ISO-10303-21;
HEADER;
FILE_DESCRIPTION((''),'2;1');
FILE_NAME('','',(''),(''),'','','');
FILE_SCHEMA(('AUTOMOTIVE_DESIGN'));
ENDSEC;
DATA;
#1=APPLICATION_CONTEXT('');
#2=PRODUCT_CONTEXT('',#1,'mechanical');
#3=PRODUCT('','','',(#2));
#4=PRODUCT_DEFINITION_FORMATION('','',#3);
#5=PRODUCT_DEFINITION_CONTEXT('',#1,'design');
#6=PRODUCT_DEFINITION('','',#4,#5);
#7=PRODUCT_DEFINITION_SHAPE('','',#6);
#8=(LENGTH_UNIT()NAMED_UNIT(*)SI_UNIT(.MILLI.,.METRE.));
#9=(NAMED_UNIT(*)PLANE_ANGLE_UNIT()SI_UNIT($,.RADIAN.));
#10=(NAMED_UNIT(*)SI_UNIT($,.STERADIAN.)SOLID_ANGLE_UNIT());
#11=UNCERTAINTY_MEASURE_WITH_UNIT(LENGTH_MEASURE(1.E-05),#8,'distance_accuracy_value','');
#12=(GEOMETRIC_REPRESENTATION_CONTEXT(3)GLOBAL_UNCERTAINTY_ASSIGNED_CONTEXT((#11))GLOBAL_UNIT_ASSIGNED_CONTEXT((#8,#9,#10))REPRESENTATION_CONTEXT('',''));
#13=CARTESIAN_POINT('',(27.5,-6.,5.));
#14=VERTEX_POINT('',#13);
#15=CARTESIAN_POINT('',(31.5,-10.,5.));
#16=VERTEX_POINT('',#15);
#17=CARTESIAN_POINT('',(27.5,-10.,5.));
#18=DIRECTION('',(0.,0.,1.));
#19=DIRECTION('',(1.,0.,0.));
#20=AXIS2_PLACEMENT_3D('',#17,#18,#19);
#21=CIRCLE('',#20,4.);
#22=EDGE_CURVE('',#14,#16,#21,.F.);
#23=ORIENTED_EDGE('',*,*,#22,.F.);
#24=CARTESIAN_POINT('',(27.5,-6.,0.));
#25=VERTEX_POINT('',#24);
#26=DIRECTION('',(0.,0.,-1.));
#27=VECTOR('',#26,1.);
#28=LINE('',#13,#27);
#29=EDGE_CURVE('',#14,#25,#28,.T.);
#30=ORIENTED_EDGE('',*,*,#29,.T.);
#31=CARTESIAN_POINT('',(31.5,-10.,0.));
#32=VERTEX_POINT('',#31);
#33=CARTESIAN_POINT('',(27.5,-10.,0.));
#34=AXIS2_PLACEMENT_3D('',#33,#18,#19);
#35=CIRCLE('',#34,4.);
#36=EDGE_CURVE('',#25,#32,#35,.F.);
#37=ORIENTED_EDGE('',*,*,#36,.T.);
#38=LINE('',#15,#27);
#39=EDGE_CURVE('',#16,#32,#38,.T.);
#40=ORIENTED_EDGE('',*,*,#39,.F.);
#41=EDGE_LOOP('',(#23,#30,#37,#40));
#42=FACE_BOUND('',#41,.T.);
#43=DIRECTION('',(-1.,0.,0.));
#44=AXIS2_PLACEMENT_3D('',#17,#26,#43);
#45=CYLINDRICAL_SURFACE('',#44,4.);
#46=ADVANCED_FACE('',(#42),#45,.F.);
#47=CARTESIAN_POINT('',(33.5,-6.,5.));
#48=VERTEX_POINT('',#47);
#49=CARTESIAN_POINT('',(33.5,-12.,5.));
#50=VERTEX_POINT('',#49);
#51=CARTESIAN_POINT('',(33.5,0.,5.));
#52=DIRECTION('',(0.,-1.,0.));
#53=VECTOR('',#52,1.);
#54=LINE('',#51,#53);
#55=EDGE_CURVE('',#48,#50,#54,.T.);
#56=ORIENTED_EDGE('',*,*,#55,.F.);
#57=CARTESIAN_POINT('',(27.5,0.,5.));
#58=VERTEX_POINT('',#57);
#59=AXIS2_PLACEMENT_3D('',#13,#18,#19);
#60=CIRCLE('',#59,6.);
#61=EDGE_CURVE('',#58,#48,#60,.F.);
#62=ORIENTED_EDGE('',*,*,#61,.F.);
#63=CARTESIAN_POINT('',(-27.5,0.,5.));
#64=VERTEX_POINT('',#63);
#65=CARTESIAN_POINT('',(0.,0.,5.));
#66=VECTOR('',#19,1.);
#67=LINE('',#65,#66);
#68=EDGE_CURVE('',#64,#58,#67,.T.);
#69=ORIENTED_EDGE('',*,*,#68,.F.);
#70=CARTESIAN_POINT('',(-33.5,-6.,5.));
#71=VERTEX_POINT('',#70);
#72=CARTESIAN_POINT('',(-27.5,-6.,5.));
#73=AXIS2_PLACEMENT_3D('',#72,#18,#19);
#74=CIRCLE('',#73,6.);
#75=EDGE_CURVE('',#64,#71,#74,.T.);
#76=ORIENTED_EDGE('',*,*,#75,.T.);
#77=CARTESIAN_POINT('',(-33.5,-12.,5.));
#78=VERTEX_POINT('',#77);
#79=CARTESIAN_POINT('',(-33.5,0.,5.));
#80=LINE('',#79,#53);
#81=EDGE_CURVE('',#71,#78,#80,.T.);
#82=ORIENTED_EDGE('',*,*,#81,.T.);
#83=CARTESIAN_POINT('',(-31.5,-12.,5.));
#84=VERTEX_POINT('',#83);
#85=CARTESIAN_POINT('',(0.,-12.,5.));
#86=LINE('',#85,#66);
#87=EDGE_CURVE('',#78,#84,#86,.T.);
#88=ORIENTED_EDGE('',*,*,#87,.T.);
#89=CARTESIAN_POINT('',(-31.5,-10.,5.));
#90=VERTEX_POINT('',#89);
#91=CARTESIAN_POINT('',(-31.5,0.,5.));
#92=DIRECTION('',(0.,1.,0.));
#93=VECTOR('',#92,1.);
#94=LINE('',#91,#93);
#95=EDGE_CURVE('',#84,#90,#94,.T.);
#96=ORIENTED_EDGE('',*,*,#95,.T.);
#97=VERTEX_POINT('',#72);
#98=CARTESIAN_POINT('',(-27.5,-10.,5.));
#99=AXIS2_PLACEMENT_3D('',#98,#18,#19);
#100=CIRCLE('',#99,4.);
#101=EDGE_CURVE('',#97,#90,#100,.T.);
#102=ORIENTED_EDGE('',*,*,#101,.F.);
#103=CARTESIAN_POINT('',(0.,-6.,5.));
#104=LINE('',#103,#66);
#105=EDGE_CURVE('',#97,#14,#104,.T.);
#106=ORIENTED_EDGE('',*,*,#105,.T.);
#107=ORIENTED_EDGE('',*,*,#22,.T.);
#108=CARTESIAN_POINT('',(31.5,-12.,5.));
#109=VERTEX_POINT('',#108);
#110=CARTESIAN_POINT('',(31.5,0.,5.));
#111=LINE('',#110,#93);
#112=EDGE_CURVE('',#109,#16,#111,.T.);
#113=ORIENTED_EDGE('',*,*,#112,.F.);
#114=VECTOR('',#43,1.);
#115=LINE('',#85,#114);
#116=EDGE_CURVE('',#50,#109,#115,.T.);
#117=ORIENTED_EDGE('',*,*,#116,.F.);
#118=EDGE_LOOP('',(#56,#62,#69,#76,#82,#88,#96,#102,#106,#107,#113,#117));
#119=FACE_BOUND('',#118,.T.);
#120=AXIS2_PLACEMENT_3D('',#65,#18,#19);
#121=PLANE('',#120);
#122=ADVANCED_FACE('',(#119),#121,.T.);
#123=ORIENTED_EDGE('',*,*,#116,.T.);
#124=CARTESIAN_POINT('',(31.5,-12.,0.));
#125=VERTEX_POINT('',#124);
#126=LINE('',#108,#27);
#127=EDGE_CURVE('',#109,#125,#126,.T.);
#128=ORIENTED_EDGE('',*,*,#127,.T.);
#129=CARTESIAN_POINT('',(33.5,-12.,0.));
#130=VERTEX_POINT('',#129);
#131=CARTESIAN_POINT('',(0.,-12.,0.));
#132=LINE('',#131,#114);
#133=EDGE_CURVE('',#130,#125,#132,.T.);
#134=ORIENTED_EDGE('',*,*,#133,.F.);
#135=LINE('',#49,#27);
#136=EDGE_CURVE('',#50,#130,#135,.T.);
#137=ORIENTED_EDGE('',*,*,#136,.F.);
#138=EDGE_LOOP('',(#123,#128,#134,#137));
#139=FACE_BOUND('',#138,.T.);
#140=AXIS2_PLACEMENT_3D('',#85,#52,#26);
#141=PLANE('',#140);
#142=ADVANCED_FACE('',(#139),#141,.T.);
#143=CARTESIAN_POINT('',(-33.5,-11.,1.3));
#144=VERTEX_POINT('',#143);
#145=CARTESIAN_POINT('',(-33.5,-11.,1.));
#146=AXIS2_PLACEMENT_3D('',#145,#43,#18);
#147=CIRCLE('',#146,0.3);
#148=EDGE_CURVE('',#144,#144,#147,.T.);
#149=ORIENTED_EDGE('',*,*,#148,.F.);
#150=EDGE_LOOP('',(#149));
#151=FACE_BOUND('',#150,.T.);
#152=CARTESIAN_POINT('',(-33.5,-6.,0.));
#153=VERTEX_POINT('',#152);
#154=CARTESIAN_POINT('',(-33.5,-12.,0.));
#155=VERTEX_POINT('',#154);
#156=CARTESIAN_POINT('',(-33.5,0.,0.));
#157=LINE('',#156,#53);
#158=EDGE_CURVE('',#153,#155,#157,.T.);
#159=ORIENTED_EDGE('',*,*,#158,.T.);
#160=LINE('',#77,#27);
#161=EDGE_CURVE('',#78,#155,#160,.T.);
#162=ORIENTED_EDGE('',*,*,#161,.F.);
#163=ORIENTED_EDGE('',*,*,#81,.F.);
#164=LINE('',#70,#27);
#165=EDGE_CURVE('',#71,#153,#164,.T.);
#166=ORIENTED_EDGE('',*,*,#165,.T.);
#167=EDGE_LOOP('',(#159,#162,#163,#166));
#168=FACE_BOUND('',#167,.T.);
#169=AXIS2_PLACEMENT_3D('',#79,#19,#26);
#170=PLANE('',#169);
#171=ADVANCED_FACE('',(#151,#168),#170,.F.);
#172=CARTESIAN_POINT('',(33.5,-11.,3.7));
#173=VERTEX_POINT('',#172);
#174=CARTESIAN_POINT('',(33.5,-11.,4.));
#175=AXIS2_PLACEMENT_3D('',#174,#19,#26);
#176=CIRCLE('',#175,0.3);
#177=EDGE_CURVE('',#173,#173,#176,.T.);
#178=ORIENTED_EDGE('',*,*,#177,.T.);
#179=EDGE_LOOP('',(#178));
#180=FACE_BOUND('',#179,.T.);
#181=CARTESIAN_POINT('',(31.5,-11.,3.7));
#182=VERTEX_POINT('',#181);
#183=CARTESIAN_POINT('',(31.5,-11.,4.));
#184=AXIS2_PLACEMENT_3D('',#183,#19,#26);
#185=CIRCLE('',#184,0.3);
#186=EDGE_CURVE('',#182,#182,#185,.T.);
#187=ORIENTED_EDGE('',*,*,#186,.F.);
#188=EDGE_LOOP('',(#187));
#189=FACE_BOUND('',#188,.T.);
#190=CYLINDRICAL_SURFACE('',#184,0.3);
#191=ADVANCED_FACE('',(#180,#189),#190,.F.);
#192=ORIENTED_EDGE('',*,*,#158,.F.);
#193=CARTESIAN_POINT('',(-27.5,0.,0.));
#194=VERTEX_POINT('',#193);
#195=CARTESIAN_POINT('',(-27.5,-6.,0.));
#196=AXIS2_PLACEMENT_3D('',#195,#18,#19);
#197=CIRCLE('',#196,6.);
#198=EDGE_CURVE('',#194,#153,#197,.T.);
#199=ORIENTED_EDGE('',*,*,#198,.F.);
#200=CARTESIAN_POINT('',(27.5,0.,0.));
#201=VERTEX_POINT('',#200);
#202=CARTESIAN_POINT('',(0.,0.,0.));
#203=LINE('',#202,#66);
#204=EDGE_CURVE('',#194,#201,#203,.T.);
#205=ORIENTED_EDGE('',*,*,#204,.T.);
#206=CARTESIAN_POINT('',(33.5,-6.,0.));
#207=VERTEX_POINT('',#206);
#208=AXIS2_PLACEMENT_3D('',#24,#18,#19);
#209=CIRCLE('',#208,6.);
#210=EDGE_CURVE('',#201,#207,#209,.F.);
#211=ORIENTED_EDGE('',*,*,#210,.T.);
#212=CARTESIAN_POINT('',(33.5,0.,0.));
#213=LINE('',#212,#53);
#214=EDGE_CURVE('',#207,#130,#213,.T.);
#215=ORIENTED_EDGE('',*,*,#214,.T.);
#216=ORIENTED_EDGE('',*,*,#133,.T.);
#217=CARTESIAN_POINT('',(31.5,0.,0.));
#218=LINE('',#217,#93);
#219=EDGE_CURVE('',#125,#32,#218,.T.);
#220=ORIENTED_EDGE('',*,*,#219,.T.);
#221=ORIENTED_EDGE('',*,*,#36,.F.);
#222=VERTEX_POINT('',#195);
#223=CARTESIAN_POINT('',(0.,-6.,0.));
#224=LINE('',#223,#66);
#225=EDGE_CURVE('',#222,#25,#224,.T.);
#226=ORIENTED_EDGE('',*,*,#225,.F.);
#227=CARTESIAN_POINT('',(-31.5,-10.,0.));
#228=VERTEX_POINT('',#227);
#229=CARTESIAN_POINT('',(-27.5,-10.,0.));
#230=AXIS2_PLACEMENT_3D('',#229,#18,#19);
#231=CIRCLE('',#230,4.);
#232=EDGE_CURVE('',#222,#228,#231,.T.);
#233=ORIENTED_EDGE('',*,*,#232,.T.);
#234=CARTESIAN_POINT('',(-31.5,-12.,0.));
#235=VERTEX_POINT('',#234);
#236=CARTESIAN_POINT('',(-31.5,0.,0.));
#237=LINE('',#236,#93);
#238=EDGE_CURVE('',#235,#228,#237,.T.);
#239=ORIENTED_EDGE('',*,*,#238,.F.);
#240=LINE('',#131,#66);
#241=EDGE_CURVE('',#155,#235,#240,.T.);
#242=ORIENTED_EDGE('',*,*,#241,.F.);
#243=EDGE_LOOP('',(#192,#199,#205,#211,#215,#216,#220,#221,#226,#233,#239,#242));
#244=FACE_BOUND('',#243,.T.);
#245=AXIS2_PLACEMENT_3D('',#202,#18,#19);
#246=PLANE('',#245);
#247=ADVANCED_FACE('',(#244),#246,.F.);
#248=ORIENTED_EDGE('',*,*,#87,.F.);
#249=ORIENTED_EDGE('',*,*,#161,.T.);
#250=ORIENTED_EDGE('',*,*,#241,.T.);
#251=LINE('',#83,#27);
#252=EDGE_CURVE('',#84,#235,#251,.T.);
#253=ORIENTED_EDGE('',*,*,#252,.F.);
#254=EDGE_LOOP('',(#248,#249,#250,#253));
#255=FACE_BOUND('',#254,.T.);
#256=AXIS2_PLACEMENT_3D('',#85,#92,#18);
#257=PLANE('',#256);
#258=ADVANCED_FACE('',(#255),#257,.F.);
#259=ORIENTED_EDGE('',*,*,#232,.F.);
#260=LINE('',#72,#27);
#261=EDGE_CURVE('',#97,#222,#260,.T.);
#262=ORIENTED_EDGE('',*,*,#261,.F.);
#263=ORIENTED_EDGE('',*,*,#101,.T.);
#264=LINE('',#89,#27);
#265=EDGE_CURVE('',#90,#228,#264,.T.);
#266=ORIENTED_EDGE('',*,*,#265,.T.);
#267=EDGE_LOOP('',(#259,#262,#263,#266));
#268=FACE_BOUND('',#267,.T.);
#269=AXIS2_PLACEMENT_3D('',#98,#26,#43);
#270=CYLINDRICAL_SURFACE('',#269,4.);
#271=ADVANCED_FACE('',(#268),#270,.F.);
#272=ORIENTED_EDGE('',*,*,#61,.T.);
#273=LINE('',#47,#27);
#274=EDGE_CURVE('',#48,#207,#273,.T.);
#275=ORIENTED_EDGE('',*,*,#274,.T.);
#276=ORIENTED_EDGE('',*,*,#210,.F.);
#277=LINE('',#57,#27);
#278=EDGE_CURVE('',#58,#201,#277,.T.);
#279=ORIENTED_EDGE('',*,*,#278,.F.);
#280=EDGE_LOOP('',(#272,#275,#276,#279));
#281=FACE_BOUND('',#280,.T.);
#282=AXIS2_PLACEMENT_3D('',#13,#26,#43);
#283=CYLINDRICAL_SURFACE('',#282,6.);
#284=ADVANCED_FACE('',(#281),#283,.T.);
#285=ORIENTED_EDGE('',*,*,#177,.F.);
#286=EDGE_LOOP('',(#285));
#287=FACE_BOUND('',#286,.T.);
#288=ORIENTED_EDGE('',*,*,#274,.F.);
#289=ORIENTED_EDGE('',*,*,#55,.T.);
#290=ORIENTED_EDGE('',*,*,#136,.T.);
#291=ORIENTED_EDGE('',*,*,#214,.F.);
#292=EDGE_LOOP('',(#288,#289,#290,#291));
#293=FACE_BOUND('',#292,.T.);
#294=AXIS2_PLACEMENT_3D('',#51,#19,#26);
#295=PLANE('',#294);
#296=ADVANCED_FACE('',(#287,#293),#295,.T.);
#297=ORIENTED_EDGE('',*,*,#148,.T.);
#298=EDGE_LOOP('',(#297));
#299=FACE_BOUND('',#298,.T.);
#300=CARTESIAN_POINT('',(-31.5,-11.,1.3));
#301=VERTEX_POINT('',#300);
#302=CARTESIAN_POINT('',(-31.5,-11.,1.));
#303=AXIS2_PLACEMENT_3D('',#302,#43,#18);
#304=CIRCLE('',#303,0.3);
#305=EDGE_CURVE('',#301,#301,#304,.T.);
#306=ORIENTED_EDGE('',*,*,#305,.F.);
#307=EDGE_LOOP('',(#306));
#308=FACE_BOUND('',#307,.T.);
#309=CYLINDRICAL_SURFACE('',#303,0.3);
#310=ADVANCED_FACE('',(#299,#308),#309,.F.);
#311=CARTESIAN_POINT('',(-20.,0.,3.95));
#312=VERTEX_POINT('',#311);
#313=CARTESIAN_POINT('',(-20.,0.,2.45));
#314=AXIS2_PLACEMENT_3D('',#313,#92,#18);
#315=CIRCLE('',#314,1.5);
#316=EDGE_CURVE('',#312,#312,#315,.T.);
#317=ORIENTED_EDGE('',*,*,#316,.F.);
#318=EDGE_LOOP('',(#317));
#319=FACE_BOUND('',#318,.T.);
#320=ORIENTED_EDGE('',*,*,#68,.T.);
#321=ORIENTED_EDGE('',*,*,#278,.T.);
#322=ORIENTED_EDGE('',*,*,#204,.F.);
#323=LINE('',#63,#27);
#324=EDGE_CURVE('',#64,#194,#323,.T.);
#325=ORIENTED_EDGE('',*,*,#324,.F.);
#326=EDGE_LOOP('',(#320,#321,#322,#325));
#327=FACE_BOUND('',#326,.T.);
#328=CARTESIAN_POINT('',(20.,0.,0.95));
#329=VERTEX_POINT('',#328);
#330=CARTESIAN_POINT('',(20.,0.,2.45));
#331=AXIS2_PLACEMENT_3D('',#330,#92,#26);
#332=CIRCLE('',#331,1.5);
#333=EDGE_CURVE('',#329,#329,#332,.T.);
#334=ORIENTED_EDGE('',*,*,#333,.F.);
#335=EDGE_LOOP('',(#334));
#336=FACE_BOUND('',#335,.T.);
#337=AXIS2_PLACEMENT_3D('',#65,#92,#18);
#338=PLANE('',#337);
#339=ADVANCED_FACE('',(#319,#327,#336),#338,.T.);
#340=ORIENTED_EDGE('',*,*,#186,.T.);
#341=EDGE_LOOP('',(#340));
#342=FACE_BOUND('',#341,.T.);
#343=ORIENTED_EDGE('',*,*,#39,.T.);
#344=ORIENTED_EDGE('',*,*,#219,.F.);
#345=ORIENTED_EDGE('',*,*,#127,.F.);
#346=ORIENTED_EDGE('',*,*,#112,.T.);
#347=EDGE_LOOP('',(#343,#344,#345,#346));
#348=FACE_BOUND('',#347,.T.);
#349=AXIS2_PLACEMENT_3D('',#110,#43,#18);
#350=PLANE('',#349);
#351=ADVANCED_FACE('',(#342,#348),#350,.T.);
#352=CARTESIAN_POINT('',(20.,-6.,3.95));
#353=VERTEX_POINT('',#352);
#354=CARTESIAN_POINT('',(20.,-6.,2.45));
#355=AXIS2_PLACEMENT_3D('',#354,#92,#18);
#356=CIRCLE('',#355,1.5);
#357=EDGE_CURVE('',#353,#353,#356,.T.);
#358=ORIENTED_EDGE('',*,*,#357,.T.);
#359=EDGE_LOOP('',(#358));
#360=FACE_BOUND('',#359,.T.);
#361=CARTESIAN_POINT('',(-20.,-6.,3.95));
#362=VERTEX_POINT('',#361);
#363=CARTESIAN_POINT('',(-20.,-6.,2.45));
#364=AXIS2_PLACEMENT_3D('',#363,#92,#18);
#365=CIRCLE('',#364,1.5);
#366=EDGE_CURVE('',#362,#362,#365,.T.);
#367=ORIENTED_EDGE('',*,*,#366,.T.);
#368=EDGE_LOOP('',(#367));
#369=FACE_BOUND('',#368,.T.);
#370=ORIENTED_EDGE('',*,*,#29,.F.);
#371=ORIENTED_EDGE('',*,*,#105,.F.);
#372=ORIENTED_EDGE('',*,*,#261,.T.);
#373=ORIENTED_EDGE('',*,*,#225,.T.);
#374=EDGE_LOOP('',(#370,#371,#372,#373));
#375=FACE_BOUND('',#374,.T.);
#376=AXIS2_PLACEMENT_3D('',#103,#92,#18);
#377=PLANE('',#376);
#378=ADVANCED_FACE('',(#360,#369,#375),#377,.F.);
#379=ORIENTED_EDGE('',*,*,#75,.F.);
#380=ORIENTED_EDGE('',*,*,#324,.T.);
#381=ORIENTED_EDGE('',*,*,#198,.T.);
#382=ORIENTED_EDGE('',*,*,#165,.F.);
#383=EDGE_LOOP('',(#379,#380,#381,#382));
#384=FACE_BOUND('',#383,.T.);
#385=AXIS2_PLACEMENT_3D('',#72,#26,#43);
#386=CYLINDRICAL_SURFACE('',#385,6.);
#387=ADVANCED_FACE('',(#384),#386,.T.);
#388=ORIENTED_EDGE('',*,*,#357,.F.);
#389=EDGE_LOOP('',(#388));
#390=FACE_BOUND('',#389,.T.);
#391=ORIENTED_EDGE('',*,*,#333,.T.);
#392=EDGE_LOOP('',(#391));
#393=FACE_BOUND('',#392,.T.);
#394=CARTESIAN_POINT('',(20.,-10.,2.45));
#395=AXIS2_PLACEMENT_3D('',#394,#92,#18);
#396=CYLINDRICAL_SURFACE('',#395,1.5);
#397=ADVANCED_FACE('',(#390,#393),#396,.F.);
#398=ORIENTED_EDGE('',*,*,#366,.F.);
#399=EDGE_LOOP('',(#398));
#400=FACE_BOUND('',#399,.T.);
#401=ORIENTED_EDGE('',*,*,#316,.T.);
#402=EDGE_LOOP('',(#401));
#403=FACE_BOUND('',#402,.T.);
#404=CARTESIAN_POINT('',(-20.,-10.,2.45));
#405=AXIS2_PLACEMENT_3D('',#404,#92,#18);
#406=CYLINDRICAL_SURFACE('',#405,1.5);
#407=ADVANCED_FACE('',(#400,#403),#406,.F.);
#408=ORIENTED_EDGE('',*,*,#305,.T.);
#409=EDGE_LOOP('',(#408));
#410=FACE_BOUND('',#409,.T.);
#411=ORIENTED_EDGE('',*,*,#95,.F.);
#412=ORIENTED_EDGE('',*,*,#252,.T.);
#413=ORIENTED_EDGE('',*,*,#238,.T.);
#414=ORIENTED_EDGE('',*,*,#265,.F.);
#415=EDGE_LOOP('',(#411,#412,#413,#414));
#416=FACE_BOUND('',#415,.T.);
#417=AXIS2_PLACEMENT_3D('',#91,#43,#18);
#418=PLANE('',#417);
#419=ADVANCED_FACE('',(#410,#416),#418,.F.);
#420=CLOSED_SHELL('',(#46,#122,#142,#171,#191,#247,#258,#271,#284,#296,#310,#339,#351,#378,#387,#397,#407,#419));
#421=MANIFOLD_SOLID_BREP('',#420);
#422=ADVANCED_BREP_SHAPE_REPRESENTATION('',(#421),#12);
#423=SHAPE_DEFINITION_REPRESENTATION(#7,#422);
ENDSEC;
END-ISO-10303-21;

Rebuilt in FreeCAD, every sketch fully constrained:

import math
import FreeCAD as App
import Part
import Sketcher
from FreeCAD import Vector

doc = App.newDocument("Part")
body = doc.addObject("PartDesign::Body", "Body")

# Sketch on XY plane
sketch1 = doc.addObject("Sketcher::SketchObject", "Sketch")
body.addObject(sketch1)
sketch1.AttachmentSupport = (doc.XY_Plane, [""])
sketch1.MapMode = "FlatFace"
sketch1.addGeometry(Part.LineSegment(Vector(-27.5, -6, 0), Vector(27.5, -6, 0)), False)
sketch1.addGeometry(Part.ArcOfCircle(Part.Circle(Vector(27.5, -10, 0), Vector(0, 0, 1), 4), math.radians(0), math.radians(90)), False)
sketch1.addGeometry(Part.LineSegment(Vector(31.5, -10, 0), Vector(31.5, -12, 0)), False)
sketch1.addGeometry(Part.LineSegment(Vector(31.5, -12, 0), Vector(33.5, -12, 0)), False)
sketch1.addGeometry(Part.LineSegment(Vector(33.5, -12, 0), Vector(33.5, -6, 0)), False)
sketch1.addGeometry(Part.ArcOfCircle(Part.Circle(Vector(27.5, -6, 0), Vector(0, 0, 1), 6), math.radians(0), math.radians(90)), False)
sketch1.addGeometry(Part.LineSegment(Vector(27.5, 0, 0), Vector(-27.5, 0, 0)), False)
sketch1.addGeometry(Part.ArcOfCircle(Part.Circle(Vector(-27.5, -6, 0), Vector(0, 0, 1), 6), math.radians(90), math.radians(180)), False)
sketch1.addGeometry(Part.LineSegment(Vector(-33.5, -6, 0), Vector(-33.5, -12, 0)), False)
sketch1.addGeometry(Part.LineSegment(Vector(-33.5, -12, 0), Vector(-31.5, -12, 0)), False)
sketch1.addGeometry(Part.LineSegment(Vector(-31.5, -12, 0), Vector(-31.5, -10, 0)), False)
sketch1.addGeometry(Part.ArcOfCircle(Part.Circle(Vector(-27.5, -10, 0), Vector(0, 0, 1), 4), math.radians(90), math.radians(180)), False)
sketch1.addConstraint(Sketcher.Constraint("Tangent", 0, 2, 1, 2))
sketch1.addConstraint(Sketcher.Constraint("Tangent", 1, 1, 2, 1))
sketch1.addConstraint(Sketcher.Constraint("Coincident", 2, 2, 3, 1))
sketch1.addConstraint(Sketcher.Constraint("Coincident", 3, 2, 4, 1))
sketch1.addConstraint(Sketcher.Constraint("Tangent", 4, 2, 5, 1))
sketch1.addConstraint(Sketcher.Constraint("Tangent", 5, 2, 6, 1))
sketch1.addConstraint(Sketcher.Constraint("Tangent", 6, 2, 7, 1))
sketch1.addConstraint(Sketcher.Constraint("Tangent", 7, 2, 8, 1))
sketch1.addConstraint(Sketcher.Constraint("Coincident", 8, 2, 9, 1))
sketch1.addConstraint(Sketcher.Constraint("Coincident", 9, 2, 10, 1))
sketch1.addConstraint(Sketcher.Constraint("Tangent", 10, 2, 11, 2))
sketch1.addConstraint(Sketcher.Constraint("Tangent", 11, 1, 0, 1))
sketch1.addConstraint(Sketcher.Constraint("Horizontal", 0))
sketch1.addConstraint(Sketcher.Constraint("Vertical", 2))
sketch1.addConstraint(Sketcher.Constraint("Horizontal", 3))
sketch1.addConstraint(Sketcher.Constraint("Vertical", 4))
sketch1.addConstraint(Sketcher.Constraint("Horizontal", 6))
sketch1.addConstraint(Sketcher.Constraint("Vertical", 8))
sketch1.addConstraint(Sketcher.Constraint("Horizontal", 9))
sketch1.addConstraint(Sketcher.Constraint("Vertical", 10))
sketch1.addConstraint(Sketcher.Constraint("Coincident", 0, 2, 5, 3))
sketch1.addConstraint(Sketcher.Constraint("Coincident", 11, 1, 7, 3))
sketch1.addConstraint(Sketcher.Constraint("Equal", 1, 11))
sketch1.addConstraint(Sketcher.Constraint("Symmetric", 5, 2, 6, 2, -1, 1))
sketch1.addConstraint(Sketcher.Constraint("Horizontal", 3, 2, 8, 2))
sketch1.addConstraint(Sketcher.Constraint("Equal", 9, 2))
sketch1.addConstraint(Sketcher.Constraint("Radius", 1, 4.0))
sketch1.addConstraint(Sketcher.Constraint("Radius", 5, 6.0))
sketch1.addConstraint(Sketcher.Constraint("DistanceX", 0, 1, 0, 2, 55.0))
pad1 = doc.addObject("PartDesign::Pad", "Pad")
body.addObject(pad1)
pad1.Profile = sketch1
pad1.Length = 5

# Sketch on YZ plane
sketch2 = doc.addObject("Sketcher::SketchObject", "Sketch001")
body.addObject(sketch2)
sketch2.AttachmentSupport = (doc.YZ_Plane, [""])
sketch2.MapMode = "FlatFace"
sketch2.AttachmentOffset = App.Placement(Vector(0, 0, 33.5), App.Rotation())
sketch2.addGeometry(Part.Circle(Vector(-11, 4, 0), Vector(0, 0, 1), 0.3), False)
sketch2.addConstraint(Sketcher.Constraint("Diameter", 0, 0.6))
sketch2.addConstraint(Sketcher.Constraint("DistanceX", 0, 3, -1, 1, 11.0))
sketch2.addConstraint(Sketcher.Constraint("DistanceY", -1, 1, 0, 3, 4.0))
pocket1 = doc.addObject("PartDesign::Pocket", "Pocket")
body.addObject(pocket1)
pocket1.Profile = sketch2
pocket1.Length = 2

# Sketch on YZ plane
sketch3 = doc.addObject("Sketcher::SketchObject", "Sketch002")
body.addObject(sketch3)
sketch3.AttachmentSupport = (doc.YZ_Plane, [""])
sketch3.MapMode = "FlatFace"
sketch3.AttachmentOffset = App.Placement(Vector(0, 0, -33.5), App.Rotation())
sketch3.addGeometry(Part.Circle(Vector(-11, 1, 0), Vector(0, 0, 1), 0.3), False)
sketch3.addConstraint(Sketcher.Constraint("Diameter", 0, 0.6))
sketch3.addConstraint(Sketcher.Constraint("DistanceX", 0, 3, -1, 1, 11.0))
sketch3.addConstraint(Sketcher.Constraint("DistanceY", -1, 1, 0, 3, 1.0))
pocket2 = doc.addObject("PartDesign::Pocket", "Pocket001")
body.addObject(pocket2)
pocket2.Profile = sketch3
pocket2.Length = 2
pocket2.Reversed = True

# Sketch on XZ plane
sketch4 = doc.addObject("Sketcher::SketchObject", "Sketch003")
body.addObject(sketch4)
sketch4.AttachmentSupport = (doc.XZ_Plane, [""])
sketch4.MapMode = "FlatFace"
sketch4.addGeometry(Part.Circle(Vector(-20, 2.45, 0), Vector(0, 0, 1), 1.5), False)
sketch4.addGeometry(Part.Circle(Vector(20, 2.45, 0), Vector(0, 0, 1), 1.5), False)
sketch4.addConstraint(Sketcher.Constraint("Equal", 0, 1))
sketch4.addConstraint(Sketcher.Constraint("Symmetric", 0, 3, 1, 3, -2))
sketch4.addConstraint(Sketcher.Constraint("Diameter", 0, 3.0))
sketch4.addConstraint(Sketcher.Constraint("DistanceX", 0, 3, -1, 1, 20.0))
sketch4.addConstraint(Sketcher.Constraint("DistanceY", -1, 1, 0, 3, 2.45))
pocket3 = doc.addObject("PartDesign::Pocket", "Pocket002")
body.addObject(pocket3)
pocket3.Profile = sketch4
pocket3.Length = 10
pocket3.Reversed = True

doc.recompute()
